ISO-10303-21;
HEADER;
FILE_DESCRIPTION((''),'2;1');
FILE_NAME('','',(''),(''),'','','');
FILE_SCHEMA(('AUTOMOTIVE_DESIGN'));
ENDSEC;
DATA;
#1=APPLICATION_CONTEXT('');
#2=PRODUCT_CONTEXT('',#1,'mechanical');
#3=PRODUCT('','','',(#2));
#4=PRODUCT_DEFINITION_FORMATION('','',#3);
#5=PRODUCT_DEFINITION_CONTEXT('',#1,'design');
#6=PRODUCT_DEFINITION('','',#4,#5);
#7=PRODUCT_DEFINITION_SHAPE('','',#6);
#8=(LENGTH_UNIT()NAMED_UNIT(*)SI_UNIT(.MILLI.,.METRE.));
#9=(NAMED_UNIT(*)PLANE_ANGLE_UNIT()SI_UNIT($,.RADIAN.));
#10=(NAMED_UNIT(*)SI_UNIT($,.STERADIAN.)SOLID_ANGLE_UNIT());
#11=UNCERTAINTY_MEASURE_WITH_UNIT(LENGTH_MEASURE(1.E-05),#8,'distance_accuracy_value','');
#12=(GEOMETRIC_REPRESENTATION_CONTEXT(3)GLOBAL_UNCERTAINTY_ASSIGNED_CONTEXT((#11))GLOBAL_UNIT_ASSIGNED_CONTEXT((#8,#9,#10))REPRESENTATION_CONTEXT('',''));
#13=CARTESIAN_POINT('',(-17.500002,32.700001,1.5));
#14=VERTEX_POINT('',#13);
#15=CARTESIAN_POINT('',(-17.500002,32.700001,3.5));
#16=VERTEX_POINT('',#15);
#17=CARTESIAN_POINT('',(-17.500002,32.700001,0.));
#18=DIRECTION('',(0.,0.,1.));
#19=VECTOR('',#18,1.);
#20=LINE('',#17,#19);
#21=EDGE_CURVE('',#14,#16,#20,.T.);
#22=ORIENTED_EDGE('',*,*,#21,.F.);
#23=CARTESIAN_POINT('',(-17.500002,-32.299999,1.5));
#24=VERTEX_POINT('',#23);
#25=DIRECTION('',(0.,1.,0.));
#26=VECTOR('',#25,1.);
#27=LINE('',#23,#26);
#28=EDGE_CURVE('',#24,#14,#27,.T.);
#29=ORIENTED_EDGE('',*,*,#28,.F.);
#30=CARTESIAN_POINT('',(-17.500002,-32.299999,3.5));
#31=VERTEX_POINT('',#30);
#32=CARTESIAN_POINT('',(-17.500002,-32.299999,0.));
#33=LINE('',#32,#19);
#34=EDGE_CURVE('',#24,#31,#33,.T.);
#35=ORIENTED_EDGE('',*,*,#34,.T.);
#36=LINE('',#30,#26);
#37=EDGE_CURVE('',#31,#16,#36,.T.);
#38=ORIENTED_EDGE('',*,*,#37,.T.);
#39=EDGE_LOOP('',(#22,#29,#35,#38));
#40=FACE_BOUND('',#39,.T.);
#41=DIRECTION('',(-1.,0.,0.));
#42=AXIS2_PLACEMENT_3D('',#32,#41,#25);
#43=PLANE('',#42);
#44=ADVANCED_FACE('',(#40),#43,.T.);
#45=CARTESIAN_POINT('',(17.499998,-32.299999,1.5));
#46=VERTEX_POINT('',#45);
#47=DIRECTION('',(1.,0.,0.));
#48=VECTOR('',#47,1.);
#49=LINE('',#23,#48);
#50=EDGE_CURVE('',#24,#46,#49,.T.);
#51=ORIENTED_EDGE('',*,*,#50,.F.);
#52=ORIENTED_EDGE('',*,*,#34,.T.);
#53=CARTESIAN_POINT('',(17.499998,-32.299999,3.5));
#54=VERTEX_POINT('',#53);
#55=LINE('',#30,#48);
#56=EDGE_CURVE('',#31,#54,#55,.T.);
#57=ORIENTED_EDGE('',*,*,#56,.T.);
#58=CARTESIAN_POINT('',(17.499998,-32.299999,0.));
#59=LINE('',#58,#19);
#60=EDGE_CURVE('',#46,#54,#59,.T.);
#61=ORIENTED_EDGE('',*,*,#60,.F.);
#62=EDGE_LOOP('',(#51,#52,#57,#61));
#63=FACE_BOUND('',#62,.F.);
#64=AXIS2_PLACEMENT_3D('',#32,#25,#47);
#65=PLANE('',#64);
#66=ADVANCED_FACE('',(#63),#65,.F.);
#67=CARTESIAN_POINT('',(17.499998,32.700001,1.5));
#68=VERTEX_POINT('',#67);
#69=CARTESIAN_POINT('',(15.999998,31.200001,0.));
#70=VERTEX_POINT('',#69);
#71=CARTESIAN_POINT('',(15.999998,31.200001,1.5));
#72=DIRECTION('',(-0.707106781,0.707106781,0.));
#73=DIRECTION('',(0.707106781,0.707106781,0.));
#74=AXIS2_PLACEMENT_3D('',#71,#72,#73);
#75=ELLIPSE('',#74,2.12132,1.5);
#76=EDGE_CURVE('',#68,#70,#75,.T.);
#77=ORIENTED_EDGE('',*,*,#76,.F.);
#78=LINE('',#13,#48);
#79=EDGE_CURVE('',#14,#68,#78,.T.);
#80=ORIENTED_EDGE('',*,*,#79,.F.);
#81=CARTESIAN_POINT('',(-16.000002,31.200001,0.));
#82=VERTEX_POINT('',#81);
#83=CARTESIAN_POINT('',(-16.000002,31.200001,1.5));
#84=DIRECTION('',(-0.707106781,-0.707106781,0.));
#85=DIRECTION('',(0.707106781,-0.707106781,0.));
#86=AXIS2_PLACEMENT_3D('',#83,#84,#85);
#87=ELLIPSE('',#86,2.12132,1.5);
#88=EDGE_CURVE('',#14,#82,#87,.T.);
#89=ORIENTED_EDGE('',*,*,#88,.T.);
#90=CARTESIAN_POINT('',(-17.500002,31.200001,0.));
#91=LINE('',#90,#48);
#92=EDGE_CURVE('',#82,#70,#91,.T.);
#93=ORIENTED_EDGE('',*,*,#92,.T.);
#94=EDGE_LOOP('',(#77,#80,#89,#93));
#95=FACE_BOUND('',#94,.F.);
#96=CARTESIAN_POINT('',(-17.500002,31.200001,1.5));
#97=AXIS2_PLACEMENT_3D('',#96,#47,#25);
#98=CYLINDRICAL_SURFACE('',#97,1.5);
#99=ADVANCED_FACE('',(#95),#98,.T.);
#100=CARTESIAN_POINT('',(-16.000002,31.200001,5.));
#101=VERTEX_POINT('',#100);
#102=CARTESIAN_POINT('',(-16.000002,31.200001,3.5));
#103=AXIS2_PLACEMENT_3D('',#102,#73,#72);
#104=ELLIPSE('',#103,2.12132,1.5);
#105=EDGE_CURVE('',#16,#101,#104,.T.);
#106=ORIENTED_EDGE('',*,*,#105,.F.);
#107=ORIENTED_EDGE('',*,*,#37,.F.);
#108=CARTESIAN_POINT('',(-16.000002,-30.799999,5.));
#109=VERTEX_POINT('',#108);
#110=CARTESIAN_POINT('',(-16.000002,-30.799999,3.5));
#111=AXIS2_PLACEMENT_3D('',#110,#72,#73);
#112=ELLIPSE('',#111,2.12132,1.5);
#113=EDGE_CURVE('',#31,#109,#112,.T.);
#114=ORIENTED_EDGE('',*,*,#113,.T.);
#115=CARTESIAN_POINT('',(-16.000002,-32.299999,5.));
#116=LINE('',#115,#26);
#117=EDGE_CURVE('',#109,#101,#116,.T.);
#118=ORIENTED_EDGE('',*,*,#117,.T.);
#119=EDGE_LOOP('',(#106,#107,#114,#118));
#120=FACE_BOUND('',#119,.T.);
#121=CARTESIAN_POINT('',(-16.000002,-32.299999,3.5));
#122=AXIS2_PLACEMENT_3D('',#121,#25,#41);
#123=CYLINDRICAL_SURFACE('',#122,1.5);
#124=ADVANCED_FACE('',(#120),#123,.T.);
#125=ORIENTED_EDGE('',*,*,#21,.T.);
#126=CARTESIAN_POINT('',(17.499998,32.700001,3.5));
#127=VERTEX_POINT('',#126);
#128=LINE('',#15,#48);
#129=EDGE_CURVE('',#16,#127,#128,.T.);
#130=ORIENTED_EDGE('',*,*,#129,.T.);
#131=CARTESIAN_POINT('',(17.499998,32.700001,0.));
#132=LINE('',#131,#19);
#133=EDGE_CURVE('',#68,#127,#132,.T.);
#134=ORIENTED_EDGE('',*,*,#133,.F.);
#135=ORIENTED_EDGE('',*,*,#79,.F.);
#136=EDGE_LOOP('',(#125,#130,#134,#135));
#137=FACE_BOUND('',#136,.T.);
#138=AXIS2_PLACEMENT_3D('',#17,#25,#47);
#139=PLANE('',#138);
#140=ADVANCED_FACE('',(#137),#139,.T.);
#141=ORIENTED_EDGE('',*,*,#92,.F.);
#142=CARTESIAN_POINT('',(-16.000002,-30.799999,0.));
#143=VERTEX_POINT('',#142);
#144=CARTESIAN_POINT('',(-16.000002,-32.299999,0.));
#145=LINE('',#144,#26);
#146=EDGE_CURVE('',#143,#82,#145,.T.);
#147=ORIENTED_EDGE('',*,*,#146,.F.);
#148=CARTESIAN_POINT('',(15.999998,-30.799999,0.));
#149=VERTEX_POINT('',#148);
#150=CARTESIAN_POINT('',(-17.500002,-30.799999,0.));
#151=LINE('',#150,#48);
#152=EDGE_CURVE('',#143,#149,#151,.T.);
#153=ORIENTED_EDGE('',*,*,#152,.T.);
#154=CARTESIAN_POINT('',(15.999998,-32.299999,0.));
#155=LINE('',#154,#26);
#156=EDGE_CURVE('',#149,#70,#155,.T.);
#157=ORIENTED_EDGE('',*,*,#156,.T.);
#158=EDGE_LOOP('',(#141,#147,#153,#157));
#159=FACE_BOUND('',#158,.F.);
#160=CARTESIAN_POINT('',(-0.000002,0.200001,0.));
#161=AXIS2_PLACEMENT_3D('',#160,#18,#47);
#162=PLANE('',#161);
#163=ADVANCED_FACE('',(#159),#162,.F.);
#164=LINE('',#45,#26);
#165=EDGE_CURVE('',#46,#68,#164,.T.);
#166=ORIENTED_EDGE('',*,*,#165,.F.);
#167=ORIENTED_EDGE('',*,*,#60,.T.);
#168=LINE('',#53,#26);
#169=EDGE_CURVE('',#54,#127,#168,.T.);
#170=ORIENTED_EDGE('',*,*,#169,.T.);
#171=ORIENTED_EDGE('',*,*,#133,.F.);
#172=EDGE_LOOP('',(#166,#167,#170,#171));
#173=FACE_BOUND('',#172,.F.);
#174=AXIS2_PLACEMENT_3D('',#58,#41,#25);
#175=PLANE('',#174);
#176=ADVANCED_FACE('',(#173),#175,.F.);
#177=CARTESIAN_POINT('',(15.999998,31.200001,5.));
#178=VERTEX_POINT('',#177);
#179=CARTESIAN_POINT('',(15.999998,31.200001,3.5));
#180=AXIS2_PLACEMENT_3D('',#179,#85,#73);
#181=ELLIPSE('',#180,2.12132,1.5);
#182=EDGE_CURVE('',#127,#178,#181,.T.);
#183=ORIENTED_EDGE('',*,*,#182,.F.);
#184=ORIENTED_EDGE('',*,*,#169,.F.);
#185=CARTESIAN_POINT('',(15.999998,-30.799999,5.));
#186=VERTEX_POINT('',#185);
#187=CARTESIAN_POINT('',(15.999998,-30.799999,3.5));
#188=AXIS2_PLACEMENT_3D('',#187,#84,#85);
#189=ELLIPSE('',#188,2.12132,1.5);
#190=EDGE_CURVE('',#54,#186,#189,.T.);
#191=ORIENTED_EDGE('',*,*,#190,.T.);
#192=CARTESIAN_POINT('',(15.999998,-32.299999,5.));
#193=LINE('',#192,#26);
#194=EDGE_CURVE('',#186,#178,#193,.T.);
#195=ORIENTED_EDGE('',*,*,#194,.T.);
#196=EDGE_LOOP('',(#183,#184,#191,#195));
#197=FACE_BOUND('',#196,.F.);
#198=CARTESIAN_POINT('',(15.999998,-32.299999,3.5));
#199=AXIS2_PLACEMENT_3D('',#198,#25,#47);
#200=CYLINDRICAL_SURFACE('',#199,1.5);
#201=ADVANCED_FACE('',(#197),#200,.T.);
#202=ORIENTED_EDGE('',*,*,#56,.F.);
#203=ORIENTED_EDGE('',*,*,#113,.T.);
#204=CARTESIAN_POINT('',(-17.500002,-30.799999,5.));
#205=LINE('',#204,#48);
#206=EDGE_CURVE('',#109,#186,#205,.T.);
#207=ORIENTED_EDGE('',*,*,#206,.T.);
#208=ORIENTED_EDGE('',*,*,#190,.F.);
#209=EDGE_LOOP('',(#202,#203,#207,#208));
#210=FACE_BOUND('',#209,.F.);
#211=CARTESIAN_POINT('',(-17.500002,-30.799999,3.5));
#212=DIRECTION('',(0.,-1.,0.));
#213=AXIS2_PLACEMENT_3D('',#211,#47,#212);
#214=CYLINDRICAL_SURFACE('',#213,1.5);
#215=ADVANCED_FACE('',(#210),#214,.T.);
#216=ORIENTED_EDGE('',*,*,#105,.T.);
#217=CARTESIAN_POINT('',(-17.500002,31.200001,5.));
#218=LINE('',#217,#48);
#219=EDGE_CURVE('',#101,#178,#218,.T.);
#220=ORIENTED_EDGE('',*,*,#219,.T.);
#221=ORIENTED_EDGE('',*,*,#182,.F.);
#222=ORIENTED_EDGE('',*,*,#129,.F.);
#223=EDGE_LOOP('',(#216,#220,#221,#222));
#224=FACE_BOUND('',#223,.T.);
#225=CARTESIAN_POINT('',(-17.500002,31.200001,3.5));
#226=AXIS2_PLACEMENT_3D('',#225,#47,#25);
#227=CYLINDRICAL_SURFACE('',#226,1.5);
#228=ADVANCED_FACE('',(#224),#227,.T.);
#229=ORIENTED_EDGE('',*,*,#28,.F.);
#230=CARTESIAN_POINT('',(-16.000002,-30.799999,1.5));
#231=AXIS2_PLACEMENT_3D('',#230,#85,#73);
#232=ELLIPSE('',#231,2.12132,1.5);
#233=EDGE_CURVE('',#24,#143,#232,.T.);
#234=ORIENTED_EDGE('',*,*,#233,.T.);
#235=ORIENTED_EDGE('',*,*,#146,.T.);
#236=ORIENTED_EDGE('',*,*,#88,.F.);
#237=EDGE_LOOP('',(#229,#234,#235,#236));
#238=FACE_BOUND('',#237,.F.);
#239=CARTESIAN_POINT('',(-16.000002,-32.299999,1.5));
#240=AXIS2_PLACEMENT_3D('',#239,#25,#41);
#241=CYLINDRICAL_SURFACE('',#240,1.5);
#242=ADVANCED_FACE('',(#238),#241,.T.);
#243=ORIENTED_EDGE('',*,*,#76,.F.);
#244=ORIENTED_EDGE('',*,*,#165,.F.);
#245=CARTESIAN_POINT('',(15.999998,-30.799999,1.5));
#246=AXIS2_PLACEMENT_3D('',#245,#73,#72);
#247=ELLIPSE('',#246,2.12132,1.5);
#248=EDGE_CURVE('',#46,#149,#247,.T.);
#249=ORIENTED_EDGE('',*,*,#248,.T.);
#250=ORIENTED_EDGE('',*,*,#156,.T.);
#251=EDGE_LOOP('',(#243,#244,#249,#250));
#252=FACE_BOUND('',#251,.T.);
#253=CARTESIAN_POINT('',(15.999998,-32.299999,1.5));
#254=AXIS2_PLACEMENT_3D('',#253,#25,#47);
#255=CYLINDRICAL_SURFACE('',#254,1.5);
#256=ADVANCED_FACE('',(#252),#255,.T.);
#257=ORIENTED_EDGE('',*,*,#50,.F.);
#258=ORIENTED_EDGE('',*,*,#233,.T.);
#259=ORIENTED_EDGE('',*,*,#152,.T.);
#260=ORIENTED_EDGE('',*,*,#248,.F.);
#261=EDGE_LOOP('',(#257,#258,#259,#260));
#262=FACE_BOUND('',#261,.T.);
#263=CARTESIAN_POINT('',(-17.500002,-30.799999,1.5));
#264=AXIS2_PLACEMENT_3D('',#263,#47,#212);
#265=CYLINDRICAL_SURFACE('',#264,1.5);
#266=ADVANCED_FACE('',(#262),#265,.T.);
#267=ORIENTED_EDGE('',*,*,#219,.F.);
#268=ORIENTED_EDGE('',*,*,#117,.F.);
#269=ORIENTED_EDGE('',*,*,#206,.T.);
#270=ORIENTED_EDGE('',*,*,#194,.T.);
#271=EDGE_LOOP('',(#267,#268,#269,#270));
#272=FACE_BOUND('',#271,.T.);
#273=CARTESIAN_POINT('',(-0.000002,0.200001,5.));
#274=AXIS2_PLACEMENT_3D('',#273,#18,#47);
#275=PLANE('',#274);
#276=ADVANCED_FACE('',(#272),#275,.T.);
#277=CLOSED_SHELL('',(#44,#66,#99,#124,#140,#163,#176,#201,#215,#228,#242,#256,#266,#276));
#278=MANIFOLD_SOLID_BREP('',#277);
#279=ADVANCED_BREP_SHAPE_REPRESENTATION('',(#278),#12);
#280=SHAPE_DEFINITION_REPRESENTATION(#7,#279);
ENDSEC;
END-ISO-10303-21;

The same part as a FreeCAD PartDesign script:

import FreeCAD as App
import Part
import Sketcher
Q = App.Units.Quantity


def edges_at(feature, points):
    """Names of the edges that pass closest to the given points."""
    edges = feature.Shape.Edges
    near = lambda p: min(range(len(edges)), key=lambda i: edges[i].distToShape(Part.Vertex(*p))[0])
    return sorted({f"Edge{near(p) + 1}" for p in points})

doc = App.newDocument("Part")
body = doc.addObject("PartDesign::Body", "Body")

# Sketch on XY plane
sketch1 = body.newObject("Sketcher::SketchObject", "Sketch")
sketch1.AttachmentSupport = (doc.getObject("XY_Plane"), [""])
sketch1.MapMode = "FlatFace"
sketch1.addGeometry([
    Part.LineSegment(App.Vector(-18, 33, 0), App.Vector(-18, -32, 0)),
    Part.LineSegment(App.Vector(-18, -32, 0), App.Vector(17, -32, 0)),
    Part.LineSegment(App.Vector(17, -32, 0), App.Vector(17, 33, 0)),
    Part.LineSegment(App.Vector(17, 33, 0), App.Vector(-18, 33, 0)),
], False)
sketch1.addConstraint([
    Sketcher.Constraint("Coincident", 0, 2, 1, 1),
    Sketcher.Constraint("Coincident", 1, 2, 2, 1),
    Sketcher.Constraint("Coincident", 2, 2, 3, 1),
    Sketcher.Constraint("Coincident", 3, 2, 0, 1),
    Sketcher.Constraint("Vertical", 0),
    Sketcher.Constraint("Horizontal", 1),
    Sketcher.Constraint("Vertical", 2),
    Sketcher.Constraint("Horizontal", 3),
    Sketcher.Constraint("DistanceX", 1, 1, 1, 2, Q("35 mm")),
    Sketcher.Constraint("DistanceY", 0, 2, 0, 1, Q("65 mm")),
    Sketcher.Constraint("DistanceX", 0, 2, -1, 1, Q("17.500002 mm")),
    Sketcher.Constraint("DistanceY", 0, 2, -1, 1, Q("32.299999 mm")),
])
pad1 = body.newObject("PartDesign::Pad", "Pad")
pad1.Profile = sketch1
pad1.Length = 5
doc.recompute()

fillet = body.newObject("PartDesign::Fillet", "Fillet")
fillet.Base = (pad1, edges_at(pad1, [
    (-17.5, 0.2, 5),
    (0, -32.3, 5),
    (17.5, 0.2, 5),
    (0, 32.7, 5),
    (17.5, 0.2, 0),
    (0, 32.7, 0),
    (-17.5, 0.2, 0),
    (0, -32.3, 0),
]))
fillet.Radius = 1.5

doc.recompute()
